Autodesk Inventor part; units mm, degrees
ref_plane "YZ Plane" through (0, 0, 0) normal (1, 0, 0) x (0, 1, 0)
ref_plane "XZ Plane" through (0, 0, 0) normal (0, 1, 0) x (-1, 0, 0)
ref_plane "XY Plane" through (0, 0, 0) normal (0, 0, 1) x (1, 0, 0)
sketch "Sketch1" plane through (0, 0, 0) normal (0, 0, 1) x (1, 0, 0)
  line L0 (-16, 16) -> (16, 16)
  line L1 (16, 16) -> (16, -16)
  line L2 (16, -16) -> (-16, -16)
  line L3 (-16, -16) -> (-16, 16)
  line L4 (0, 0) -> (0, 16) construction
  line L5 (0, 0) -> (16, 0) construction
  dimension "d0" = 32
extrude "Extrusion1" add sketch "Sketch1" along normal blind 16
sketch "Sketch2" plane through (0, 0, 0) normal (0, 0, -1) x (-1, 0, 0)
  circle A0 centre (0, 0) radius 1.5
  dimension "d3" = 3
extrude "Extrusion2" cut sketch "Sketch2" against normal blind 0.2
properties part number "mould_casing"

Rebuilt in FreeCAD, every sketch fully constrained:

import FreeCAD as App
import Part
import Sketcher
Q = App.Units.Quantity


def add_polygon(sketch, points):
    """Adds a closed chain of lines whose ends are joined by coincident constraints."""
    first, n = sketch.GeometryCount, len(points)
    for a, b in zip(points, points[1:] + points[:1]):
        sketch.addGeometry(Part.LineSegment(App.Vector(*a, 0), App.Vector(*b, 0)), False)
    for i in range(n):
        sketch.addConstraint(Sketcher.Constraint("Coincident", first + i, 2, first + (i + 1) % n, 1))

doc = App.newDocument("Part")
params = doc.addObject("Spreadsheet::Sheet", "Params")
for row, (alias, value) in enumerate([
    ("sketch1_width", "32 mm"),
    ("pad1_length", "16 mm"),
    ("sketch2_diameter", "3 mm"),
    ("pocket1_length", "0.2 mm"),
], start=1):
    params.set(f"A{row}", alias)
    params.set(f"B{row}", "=" + value)
    params.setAlias(f"B{row}", alias)

body = doc.addObject("PartDesign::Body", "Body")

sketch1 = body.newObject("Sketcher::SketchObject", "Sketch")
sketch1.AttachmentSupport = (doc.getObject("XY_Plane"), [""])
sketch1.MapMode = "FlatFace"
add_polygon(sketch1, [(16, 16), (-16, 16), (-16, -16), (16, -16)])
sketch1.addConstraint([
    Sketcher.Constraint("Horizontal", 0),
    Sketcher.Constraint("Vertical", 1),
    Sketcher.Constraint("Horizontal", 2),
    Sketcher.Constraint("Vertical", 3),
    Sketcher.Constraint("Symmetric", 0, 2, 2, 2, -1, 1),
    Sketcher.Constraint("Equal", 2, 1),
    Sketcher.Constraint("DistanceX", 0, 2, 0, 1, Q("32 mm")),
])
sketch1.setExpression("Constraints[10]", "Params.sketch1_width")
pad1 = body.newObject("PartDesign::Pad", "Pad")
pad1.Profile = sketch1
pad1.setExpression("Length", "Params.pad1_length")

sketch2 = body.newObject("Sketcher::SketchObject", "Sketch001")
sketch2.AttachmentSupport = (doc.getObject("XY_Plane"), [""])
sketch2.MapMode = "FlatFace"
sketch2.addGeometry(Part.Circle(App.Vector(0, 0, 0), App.Vector(0, 0, 1), 1.5), False)
sketch2.addConstraint([
    Sketcher.Constraint("Coincident", 0, 3, -1, 1),
    Sketcher.Constraint("Diameter", 0, Q("3 mm")),
])
sketch2.setExpression("Constraints[1]", "Params.sketch2_diameter")
pocket1 = body.newObject("PartDesign::Pocket", "Pocket")
pocket1.Profile = sketch2
pocket1.setExpression("Length", "Params.pocket1_length")
pocket1.Reversed = True

doc.recompute()
